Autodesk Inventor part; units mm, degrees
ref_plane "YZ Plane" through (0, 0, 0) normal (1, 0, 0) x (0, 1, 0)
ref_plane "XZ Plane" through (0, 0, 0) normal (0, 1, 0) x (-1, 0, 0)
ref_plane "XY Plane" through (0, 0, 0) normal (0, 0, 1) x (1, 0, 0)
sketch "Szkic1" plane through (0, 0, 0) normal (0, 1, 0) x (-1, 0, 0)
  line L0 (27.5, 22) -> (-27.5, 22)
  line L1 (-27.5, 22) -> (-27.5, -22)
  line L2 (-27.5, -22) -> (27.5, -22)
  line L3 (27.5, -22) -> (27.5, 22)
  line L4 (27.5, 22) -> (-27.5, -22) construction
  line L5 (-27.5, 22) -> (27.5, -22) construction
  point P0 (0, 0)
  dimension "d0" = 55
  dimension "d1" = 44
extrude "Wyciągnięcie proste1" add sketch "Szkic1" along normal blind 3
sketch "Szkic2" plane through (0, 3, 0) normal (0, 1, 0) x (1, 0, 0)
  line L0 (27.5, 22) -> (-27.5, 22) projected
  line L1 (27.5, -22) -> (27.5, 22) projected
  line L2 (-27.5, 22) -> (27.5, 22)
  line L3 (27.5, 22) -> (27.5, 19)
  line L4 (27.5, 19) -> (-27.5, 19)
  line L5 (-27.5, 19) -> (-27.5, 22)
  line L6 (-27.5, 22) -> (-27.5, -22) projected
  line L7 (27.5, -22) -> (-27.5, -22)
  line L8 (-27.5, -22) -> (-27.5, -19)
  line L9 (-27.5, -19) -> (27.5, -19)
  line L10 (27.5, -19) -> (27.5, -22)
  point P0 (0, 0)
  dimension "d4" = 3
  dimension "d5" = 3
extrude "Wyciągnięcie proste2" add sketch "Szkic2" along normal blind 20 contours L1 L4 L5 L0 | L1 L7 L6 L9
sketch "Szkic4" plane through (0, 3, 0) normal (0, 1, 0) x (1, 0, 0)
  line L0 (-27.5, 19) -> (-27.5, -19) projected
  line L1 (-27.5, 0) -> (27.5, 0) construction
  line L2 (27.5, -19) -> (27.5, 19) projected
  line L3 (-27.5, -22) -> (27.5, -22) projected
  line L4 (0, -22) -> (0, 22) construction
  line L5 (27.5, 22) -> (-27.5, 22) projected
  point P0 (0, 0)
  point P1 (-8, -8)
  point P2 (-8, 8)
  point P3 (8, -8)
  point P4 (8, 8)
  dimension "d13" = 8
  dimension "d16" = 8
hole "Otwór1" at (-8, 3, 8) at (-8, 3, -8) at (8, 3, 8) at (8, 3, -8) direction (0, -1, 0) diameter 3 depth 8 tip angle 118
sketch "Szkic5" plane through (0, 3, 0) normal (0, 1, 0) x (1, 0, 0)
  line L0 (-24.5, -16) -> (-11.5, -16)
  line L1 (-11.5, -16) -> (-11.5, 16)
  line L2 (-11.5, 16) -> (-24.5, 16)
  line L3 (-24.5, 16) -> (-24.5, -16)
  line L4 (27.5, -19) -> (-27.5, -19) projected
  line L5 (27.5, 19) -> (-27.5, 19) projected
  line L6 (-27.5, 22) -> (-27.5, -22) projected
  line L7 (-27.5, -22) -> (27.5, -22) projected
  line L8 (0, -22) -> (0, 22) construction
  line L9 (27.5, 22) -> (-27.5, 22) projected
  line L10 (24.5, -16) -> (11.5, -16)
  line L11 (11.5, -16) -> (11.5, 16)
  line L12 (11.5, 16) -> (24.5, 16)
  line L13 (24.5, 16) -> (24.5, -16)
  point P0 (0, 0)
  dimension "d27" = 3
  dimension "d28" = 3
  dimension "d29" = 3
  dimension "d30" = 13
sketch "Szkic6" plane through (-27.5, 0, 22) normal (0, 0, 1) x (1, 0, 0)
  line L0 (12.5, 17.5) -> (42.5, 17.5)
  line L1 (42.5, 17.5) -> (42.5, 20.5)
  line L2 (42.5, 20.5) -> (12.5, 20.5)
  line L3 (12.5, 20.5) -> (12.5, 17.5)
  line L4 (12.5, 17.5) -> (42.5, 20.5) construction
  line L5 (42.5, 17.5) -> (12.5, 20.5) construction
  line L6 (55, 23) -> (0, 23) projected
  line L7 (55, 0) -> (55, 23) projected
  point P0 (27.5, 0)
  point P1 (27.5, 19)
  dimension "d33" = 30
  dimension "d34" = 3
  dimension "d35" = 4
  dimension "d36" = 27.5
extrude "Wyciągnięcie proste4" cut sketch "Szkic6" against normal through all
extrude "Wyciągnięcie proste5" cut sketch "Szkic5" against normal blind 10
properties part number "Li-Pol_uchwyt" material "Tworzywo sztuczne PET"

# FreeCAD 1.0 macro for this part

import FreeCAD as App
import Part
import Sketcher

V = App.Vector


def add_polygon(sketch, points):
    """Adds a closed chain of lines whose ends are joined by coincident constraints."""
    first, n = sketch.GeometryCount, len(points)
    for a, b in zip(points, points[1:] + points[:1]):
        sketch.addGeometry(Part.LineSegment(App.Vector(*a, 0), App.Vector(*b, 0)), False)
    for i in range(n):
        sketch.addConstraint(Sketcher.Constraint("Coincident", first + i, 2, first + (i + 1) % n, 1))

doc = App.newDocument("Part")
body = doc.addObject("PartDesign::Body", "Body")

sketch1 = body.newObject("Sketcher::SketchObject", "Sketch")
sketch1.AttachmentSupport = (doc.getObject("XZ_Plane"), [""])
sketch1.MapMode = "FlatFace"
add_polygon(sketch1, [(-28, -22), (-28, 22), (28, 22), (28, -22)])
sketch1.addConstraint([
    Sketcher.Constraint("Vertical", 0),
    Sketcher.Constraint("Horizontal", 1),
    Sketcher.Constraint("Vertical", 2),
    Sketcher.Constraint("Horizontal", 3),
    Sketcher.Constraint("Symmetric", 0, 2, 2, 2, -1, 1),
    Sketcher.Constraint("DistanceX", 1, 1, 1, 2, 55.0),
    Sketcher.Constraint("DistanceY", 0, 1, 0, 2, 44.0),
])
pad1 = body.newObject("PartDesign::Pad", "Pad")
pad1.Profile = sketch1
pad1.Length = 3
pad1.Reversed = True

sketch2 = body.newObject("Sketcher::SketchObject", "Sketch001")
sketch2.AttachmentSupport = (doc.getObject("XZ_Plane"), [""])
sketch2.MapMode = "FlatFace"
sketch2.AttachmentOffset = App.Placement(V(0, 0, -3), App.Rotation())
add_polygon(sketch2, [(27.5, -19), (27.5, -22), (-27.5, -22), (-27.5, -19)])
add_polygon(sketch2, [(27.5, 22), (27.5, 19), (-27.5, 19), (-27.5, 22)])
sketch2.addConstraint([
    Sketcher.Constraint("Vertical", 0),
    Sketcher.Constraint("Horizontal", 1),
    Sketcher.Constraint("Vertical", 2),
    Sketcher.Constraint("Horizontal", 3),
    Sketcher.Constraint("Vertical", 4),
    Sketcher.Constraint("Horizontal", 5),
    Sketcher.Constraint("Vertical", 6),
    Sketcher.Constraint("Horizontal", 7),
    Sketcher.Constraint("Symmetric", 2, 2, 4, 2, -1, 1),
    Sketcher.Constraint("Symmetric", 0, 2, 6, 2, -1, 1),
    Sketcher.Constraint("Vertical", 3, 2, 4, 2),
    Sketcher.Constraint("DistanceY", 0, 2, 0, 1, 3.0),
    Sketcher.Constraint("DistanceX", 1, 2, 1, 1, 55.0),
    Sketcher.Constraint("DistanceY", 0, 2, -1, 1, 22.0),
])
pad2 = body.newObject("PartDesign::Pad", "Pad001")
pad2.Profile = sketch2
pad2.Length = 20
pad2.Reversed = True

sketch3 = body.newObject("Sketcher::SketchObject", "Sketch002")
sketch3.AttachmentSupport = (doc.getObject("XZ_Plane"), [""])
sketch3.MapMode = "FlatFace"
sketch3.AttachmentOffset = App.Placement(V(0, 0, -3), App.Rotation())
sketch3.addGeometry([
    Part.Circle(V(-8, 8, 0), V(0, 0, 1), 1.5),
    Part.Circle(V(-8, -8, 0), V(0, 0, 1), 1.5),
    Part.Circle(V(8, 8, 0), V(0, 0, 1), 1.5),
    Part.Circle(V(8, -8, 0), V(0, 0, 1), 1.5),
], False)
sketch3.addConstraint([
    Sketcher.Constraint("Equal", 0, 1),
    Sketcher.Constraint("Equal", 1, 2),
    Sketcher.Constraint("Equal", 2, 3),
    Sketcher.Constraint("Symmetric", 1, 3, 2, 3, -1, 1),
    Sketcher.Constraint("Symmetric", 0, 3, 3, 3, -1, 1),
    Sketcher.Constraint("Symmetric", 0, 3, 2, 3, -2),
    Sketcher.Constraint("Diameter", 0, 3.0),
    Sketcher.Constraint("DistanceX", 0, 3, -1, 1, 8.0),
    Sketcher.Constraint("DistanceY", -1, 1, 0, 3, 8.0),
])
doc.recompute()
hole = body.newObject("PartDesign::Hole", "Hole")
hole.Profile = sketch3
hole.ThreadType = "None"
hole.Diameter = 3
hole.DepthType = "Dimension"
hole.Depth = 8
hole.DrillPoint = "Angled"
hole.DrillPointAngle = 118
hole.Reversed = True

sketch4 = body.newObject("Sketcher::SketchObject", "Sketch003")
sketch4.AttachmentSupport = (doc.getObject("XY_Plane"), [""])
sketch4.MapMode = "FlatFace"
sketch4.AttachmentOffset = App.Placement(V(0, 0, 22), App.Rotation())
add_polygon(sketch4, [(-15, 20.5), (-15, 17.5), (15, 17.5), (15, 20.5)])
sketch4.addConstraint([
    Sketcher.Constraint("Vertical", 0),
    Sketcher.Constraint("Horizontal", 1),
    Sketcher.Constraint("Vertical", 2),
    Sketcher.Constraint("Horizontal", 3),
    Sketcher.Constraint("DistanceX", 1, 1, 1, 2, 30.0),
    Sketcher.Constraint("DistanceY", 0, 2, 0, 1, 3.0),
    Sketcher.Constraint("DistanceX", 0, 2, -1, 1, 15.0),
    Sketcher.Constraint("DistanceY", -1, 1, 0, 2, 17.5),
])
pocket1 = body.newObject("PartDesign::Pocket", "Pocket")
pocket1.Profile = sketch4
pocket1.Type = "ThroughAll"

sketch5 = body.newObject("Sketcher::SketchObject", "Sketch004")
sketch5.AttachmentSupport = (doc.getObject("XZ_Plane"), [""])
sketch5.MapMode = "FlatFace"
sketch5.AttachmentOffset = App.Placement(V(0, 0, -3), App.Rotation())
add_polygon(sketch5, [(-24, -16), (-24, 16), (-12, 16), (-12, -16)])
add_polygon(sketch5, [(12, 16), (24, 16), (24, -16), (12, -16)])
sketch5.addConstraint([
    Sketcher.Constraint("Vertical", 0),
    Sketcher.Constraint("Horizontal", 1),
    Sketcher.Constraint("Vertical", 2),
    Sketcher.Constraint("Horizontal", 3),
    Sketcher.Constraint("Horizontal", 4),
    Sketcher.Constraint("Vertical", 5),
    Sketcher.Constraint("Horizontal", 6),
    Sketcher.Constraint("Vertical", 7),
    Sketcher.Constraint("Symmetric", 3, 2, 4, 2, -1, 1),
    Sketcher.Constraint("Symmetric", 1, 2, 6, 2, -1, 1),
    Sketcher.Constraint("Horizontal", 1, 2, 4, 2),
    Sketcher.Constraint("DistanceX", 1, 1, 1, 2, 13.0),
    Sketcher.Constraint("DistanceY", 0, 1, 0, 2, 32.0),
    Sketcher.Constraint("DistanceX", 1, 2, 4, 2, 36.0),
])
pocket2 = body.newObject("PartDesign::Pocket", "Pocket001")
pocket2.Profile = sketch5
pocket2.Length = 10
pocket2.Reversed = True

doc.recompute()
